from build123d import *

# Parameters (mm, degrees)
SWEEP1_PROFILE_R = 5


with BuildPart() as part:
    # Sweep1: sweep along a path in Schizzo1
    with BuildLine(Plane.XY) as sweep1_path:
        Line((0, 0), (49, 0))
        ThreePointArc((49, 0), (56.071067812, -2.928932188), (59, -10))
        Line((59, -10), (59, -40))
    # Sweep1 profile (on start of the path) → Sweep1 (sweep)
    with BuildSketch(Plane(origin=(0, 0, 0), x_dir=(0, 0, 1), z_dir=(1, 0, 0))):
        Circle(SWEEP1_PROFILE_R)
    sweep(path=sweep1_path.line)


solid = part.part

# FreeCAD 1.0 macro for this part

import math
import FreeCAD as App
import Part
import Sketcher
from FreeCAD import Vector

doc = App.newDocument("Part")
body = doc.addObject("PartDesign::Body", "Body")

# Sketch on YZ plane
sketch1 = doc.addObject("Sketcher::SketchObject", "Sketch")
body.addObject(sketch1)
sketch1.AttachmentSupport = (doc.YZ_Plane, [""])
sketch1.MapMode = "FlatFace"
sketch1.addGeometry(Part.Circle(Vector(0, 0, 0), Vector(0, 0, 1), 5), False)
sketch1.addConstraint([
    Sketcher.Constraint("Coincident", 0, 3, -1, 1),
    Sketcher.Constraint("Diameter", 0, 10.0),
])

# Sketch on XY plane
sketch2 = doc.addObject("Sketcher::SketchObject", "Sketch001")
body.addObject(sketch2)
sketch2.AttachmentSupport = (doc.XY_Plane, [""])
sketch2.MapMode = "FlatFace"
sketch2.addGeometry([
    Part.LineSegment(Vector(0, 0, 0), Vector(49, 0, 0)),
    Part.ArcOfCircle(Part.Circle(Vector(49, -10, 0), Vector(0, 0, 1), 10), math.radians(0), math.radians(90)),
    Part.LineSegment(Vector(59, -10, 0), Vector(59, -40, 0)),
], False)
sketch2.addConstraint([
    Sketcher.Constraint("Tangent", 0, 2, 1, 2),
    Sketcher.Constraint("Tangent", 1, 1, 2, 1),
    Sketcher.Constraint("Horizontal", 0),
    Sketcher.Constraint("Vertical", 2),
    Sketcher.Constraint("Coincident", 0, 1, -1, 1),
    Sketcher.Constraint("Radius", 1, 10.0),
    Sketcher.Constraint("DistanceX", 0, 1, 0, 2, 49.0),
    Sketcher.Constraint("DistanceY", 2, 2, 2, 1, 30.0),
])
doc.recompute()

additivepipe = doc.addObject("PartDesign::AdditivePipe", "AdditivePipe")
body.addObject(additivepipe)
additivepipe.Profile = sketch1
additivepipe.Spine = (sketch2, ["Edge1", "Edge2", "Edge3"])

doc.recompute()
